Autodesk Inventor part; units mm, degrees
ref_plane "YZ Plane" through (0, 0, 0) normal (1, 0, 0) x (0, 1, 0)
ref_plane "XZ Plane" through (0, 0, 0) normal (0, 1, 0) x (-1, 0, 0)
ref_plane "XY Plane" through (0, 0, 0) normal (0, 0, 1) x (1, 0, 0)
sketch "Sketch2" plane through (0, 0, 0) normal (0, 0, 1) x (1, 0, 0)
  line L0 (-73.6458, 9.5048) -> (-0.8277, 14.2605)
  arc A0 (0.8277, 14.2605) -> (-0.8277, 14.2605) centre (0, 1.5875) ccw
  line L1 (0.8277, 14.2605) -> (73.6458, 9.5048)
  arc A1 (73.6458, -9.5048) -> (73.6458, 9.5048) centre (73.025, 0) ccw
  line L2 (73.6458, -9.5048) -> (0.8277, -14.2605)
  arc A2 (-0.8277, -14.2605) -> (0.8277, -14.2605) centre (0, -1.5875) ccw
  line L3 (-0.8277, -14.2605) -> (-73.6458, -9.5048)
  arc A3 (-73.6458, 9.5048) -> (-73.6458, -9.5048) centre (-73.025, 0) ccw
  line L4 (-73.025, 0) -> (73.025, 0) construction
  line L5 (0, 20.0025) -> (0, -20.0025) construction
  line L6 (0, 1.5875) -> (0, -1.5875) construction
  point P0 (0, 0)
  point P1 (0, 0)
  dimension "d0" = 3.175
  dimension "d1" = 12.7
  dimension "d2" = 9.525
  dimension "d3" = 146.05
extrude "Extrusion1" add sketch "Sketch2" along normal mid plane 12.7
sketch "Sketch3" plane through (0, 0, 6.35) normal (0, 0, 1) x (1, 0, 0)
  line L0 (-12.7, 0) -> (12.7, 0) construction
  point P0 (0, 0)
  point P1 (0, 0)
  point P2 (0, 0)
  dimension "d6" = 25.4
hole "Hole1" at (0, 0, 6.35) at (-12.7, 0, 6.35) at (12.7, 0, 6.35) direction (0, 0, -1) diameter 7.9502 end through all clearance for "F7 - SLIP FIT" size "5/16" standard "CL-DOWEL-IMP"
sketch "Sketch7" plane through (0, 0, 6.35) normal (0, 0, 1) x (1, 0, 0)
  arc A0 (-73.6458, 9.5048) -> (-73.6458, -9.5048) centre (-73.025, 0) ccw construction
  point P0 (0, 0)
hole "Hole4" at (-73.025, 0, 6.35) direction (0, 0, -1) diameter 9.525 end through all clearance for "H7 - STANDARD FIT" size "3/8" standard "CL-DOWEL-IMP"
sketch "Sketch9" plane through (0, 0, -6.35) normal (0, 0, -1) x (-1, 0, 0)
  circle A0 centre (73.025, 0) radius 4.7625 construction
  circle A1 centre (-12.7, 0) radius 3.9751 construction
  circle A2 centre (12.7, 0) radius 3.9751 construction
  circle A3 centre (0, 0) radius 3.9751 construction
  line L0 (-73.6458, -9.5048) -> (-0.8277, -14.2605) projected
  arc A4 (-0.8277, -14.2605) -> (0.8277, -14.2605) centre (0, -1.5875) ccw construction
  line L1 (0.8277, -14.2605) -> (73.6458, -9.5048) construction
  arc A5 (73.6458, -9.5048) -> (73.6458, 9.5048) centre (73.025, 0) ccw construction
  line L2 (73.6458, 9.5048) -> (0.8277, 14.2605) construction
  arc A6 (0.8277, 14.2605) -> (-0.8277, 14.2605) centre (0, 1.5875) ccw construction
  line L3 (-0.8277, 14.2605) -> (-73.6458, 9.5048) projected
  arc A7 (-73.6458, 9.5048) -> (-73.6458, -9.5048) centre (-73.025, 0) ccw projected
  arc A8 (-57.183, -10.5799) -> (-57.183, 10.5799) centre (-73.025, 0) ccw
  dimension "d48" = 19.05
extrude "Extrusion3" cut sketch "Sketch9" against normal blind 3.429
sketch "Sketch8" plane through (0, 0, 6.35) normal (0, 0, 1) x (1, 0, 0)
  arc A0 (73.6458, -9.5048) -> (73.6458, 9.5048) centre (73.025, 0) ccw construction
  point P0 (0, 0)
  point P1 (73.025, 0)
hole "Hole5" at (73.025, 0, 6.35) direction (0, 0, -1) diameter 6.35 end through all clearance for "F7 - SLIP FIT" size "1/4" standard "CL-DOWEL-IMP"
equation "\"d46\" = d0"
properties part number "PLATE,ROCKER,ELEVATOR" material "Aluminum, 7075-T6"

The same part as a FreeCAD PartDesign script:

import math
import FreeCAD as App
import Part
import Sketcher
from FreeCAD import Vector
Q = App.Units.Quantity

doc = App.newDocument("Part")
body = doc.addObject("PartDesign::Body", "Body")

# Sketch on XY plane
sketch1 = body.newObject("Sketcher::SketchObject", "Sketch")
sketch1.AttachmentSupport = (doc.getObject("XY_Plane"), [""])
sketch1.MapMode = "FlatFace"
sketch1.addGeometry(Part.LineSegment(Vector(-0.8, 14.3, 0), Vector(-73.6, 9.5, 0)), False)
sketch1.addGeometry(Part.ArcOfCircle(Part.Circle(Vector(-73, 0, 0), Vector(0, 0, 1), 9.5), math.radians(94), math.radians(266)), False)
sketch1.addGeometry(Part.LineSegment(Vector(-73.6, -9.5, 0), Vector(-0.8, -14.3, 0)), False)
sketch1.addGeometry(Part.ArcOfCircle(Part.Circle(Vector(0, -1.6, 0), Vector(0, 0, 1), 12.7), math.radians(-93.74), math.radians(-86.26)), False)
sketch1.addGeometry(Part.LineSegment(Vector(0.8, -14.3, 0), Vector(73.6, -9.5, 0)), False)
sketch1.addGeometry(Part.ArcOfCircle(Part.Circle(Vector(73, 0, 0), Vector(0, 0, 1), 9.5), math.radians(-86), math.radians(86)), False)
sketch1.addGeometry(Part.LineSegment(Vector(73.6, 9.5, 0), Vector(0.8, 14.3, 0)), False)
sketch1.addGeometry(Part.ArcOfCircle(Part.Circle(Vector(0, 1.6, 0), Vector(0, 0, 1), 12.7), math.radians(86.26), math.radians(93.74)), False)
sketch1.addConstraint(Sketcher.Constraint("Tangent", 0, 2, 1, 1))
sketch1.addConstraint(Sketcher.Constraint("Tangent", 1, 2, 2, 1))
sketch1.addConstraint(Sketcher.Constraint("Tangent", 2, 2, 3, 1))
sketch1.addConstraint(Sketcher.Constraint("Tangent", 3, 2, 4, 1))
sketch1.addConstraint(Sketcher.Constraint("Tangent", 4, 2, 5, 1))
sketch1.addConstraint(Sketcher.Constraint("Tangent", 5, 2, 6, 1))
sketch1.addConstraint(Sketcher.Constraint("Tangent", 6, 2, 7, 1))
sketch1.addConstraint(Sketcher.Constraint("Tangent", 7, 2, 0, 1))
sketch1.addConstraint(Sketcher.Constraint("Equal", 1, 5))
sketch1.addConstraint(Sketcher.Constraint("Equal", 3, 7))
sketch1.addConstraint(Sketcher.Constraint("Symmetric", 1, 3, 5, 3, -1, 1))
sketch1.addConstraint(Sketcher.Constraint("Symmetric", 3, 3, 7, 3, -1, 1))
sketch1.addConstraint(Sketcher.Constraint("Symmetric", 2, 2, 3, 2, -2))
sketch1.addConstraint(Sketcher.Constraint("Radius", 3, Q("0.5 in")))
sketch1.addConstraint(Sketcher.Constraint("Radius", 1, Q("0.375 in")))
sketch1.addConstraint(Sketcher.Constraint("DistanceX", 1, 3, 5, 3, Q("5.75 in")))
sketch1.addConstraint(Sketcher.Constraint("DistanceY", 3, 3, 7, 3, Q("0.125 in")))
pad1 = body.newObject("PartDesign::Pad", "Pad")
pad1.Profile = sketch1
pad1.Length = Q("0.5 in")
pad1.Midplane = True

# Sketch on XY plane
sketch2 = body.newObject("Sketcher::SketchObject", "Sketch001")
sketch2.AttachmentSupport = (doc.getObject("XY_Plane"), [""])
sketch2.MapMode = "FlatFace"
sketch2.AttachmentOffset = App.Placement(Vector(0, 0, 0.25 * 25.4), App.Rotation())
sketch2.addGeometry(Part.Circle(Vector(0, 0, 0), Vector(0, 0, 1), 4), False)
sketch2.addGeometry(Part.Circle(Vector(-12.7, 0, 0), Vector(0, 0, 1), 4), False)
sketch2.addGeometry(Part.Circle(Vector(12.7, 0, 0), Vector(0, 0, 1), 4), False)
sketch2.addConstraint(Sketcher.Constraint("Coincident", 0, 3, -1, 1))
sketch2.addConstraint(Sketcher.Constraint("Equal", 0, 1))
sketch2.addConstraint(Sketcher.Constraint("Equal", 1, 2))
sketch2.addConstraint(Sketcher.Constraint("Symmetric", 1, 3, 2, 3, -1, 1))
sketch2.addConstraint(Sketcher.Constraint("PointOnObject", 1, 3, -1))
sketch2.addConstraint(Sketcher.Constraint("Diameter", 0, Q("0.313 in")))
sketch2.addConstraint(Sketcher.Constraint("DistanceX", 1, 3, 2, 3, Q("1 in")))
doc.recompute()
hole = body.newObject("PartDesign::Hole", "Hole")
hole.Profile = sketch2
hole.ThreadType = "None"
hole.Diameter = Q("0.313 in")
hole.DepthType = "ThroughAll"

# Sketch on XY plane
sketch3 = body.newObject("Sketcher::SketchObject", "Sketch002")
sketch3.AttachmentSupport = (doc.getObject("XY_Plane"), [""])
sketch3.MapMode = "FlatFace"
sketch3.AttachmentOffset = App.Placement(Vector(0, 0, 0.25 * 25.4), App.Rotation())
sketch3.addGeometry(Part.Circle(Vector(-73, 0, 0), Vector(0, 0, 1), 4.8), False)
sketch3.addConstraint(Sketcher.Constraint("PointOnObject", 0, 3, -1))
sketch3.addConstraint(Sketcher.Constraint("Diameter", 0, Q("0.375 in")))
sketch3.addConstraint(Sketcher.Constraint("DistanceX", 0, 3, -1, 1, Q("2.875 in")))
doc.recompute()
hole2 = body.newObject("PartDesign::Hole", "Hole001")
hole2.Profile = sketch3
hole2.ThreadType = "None"
hole2.Diameter = Q("0.375 in")
hole2.DepthType = "ThroughAll"

# Sketch on XY plane
sketch4 = body.newObject("Sketcher::SketchObject", "Sketch003")
sketch4.AttachmentSupport = (doc.getObject("XY_Plane"), [""])
sketch4.MapMode = "FlatFace"
sketch4.AttachmentOffset = App.Placement(Vector(0, 0, -0.25 * 25.4), App.Rotation())
sketch4.addGeometry(Part.ArcOfCircle(Part.Circle(Vector(73.025, 0, 0), Vector(0, 0, 1), 9.525052), math.radians(-86.26307), math.radians(86.26307)), False)
sketch4.addGeometry(Part.LineSegment(Vector(73.6458, -9.5048, 0), Vector(57.183005, -10.579974, 0)), False)
sketch4.addGeometry(Part.ArcOfCircle(Part.Circle(Vector(73.025, 0, 0), Vector(0, 0, 1), 19.05002), math.radians(146.263469), math.radians(213.736531)), False)
sketch4.addGeometry(Part.LineSegment(Vector(57.183005, 10.579974, 0), Vector(73.6458, 9.5048, 0)), False)
sketch4.addConstraint(Sketcher.Constraint("Coincident", 0, 1, 1, 1))
sketch4.addConstraint(Sketcher.Constraint("Coincident", 1, 2, 2, 2))
sketch4.addConstraint(Sketcher.Constraint("Coincident", 2, 1, 3, 1))
sketch4.addConstraint(Sketcher.Constraint("Coincident", 3, 2, 0, 2))
sketch4.addConstraint(Sketcher.Constraint("Coincident", 2, 3, 0, 3))
sketch4.addConstraint(Sketcher.Constraint("PointOnObject", 0, 3, -1))
sketch4.addConstraint(Sketcher.Constraint("Radius", 2, Q("0.75 in")))
sketch4.addConstraint(Sketcher.Constraint("Radius", 0, Q("0.375 in")))
sketch4.addConstraint(Sketcher.Constraint("DistanceX", -1, 1, 0, 3, Q("2.875 in")))
sketch4.addConstraint(Sketcher.Constraint("DistanceY", 0, 1, -1, 1, Q("0.3742 in")))
sketch4.addConstraint(Sketcher.Constraint("DistanceX", -1, 1, 1, 2, Q("2.2513 in")))
sketch4.addConstraint(Sketcher.Constraint("DistanceX", -1, 1, 2, 1, Q("2.2513 in")))
sketch4.addConstraint(Sketcher.Constraint("DistanceY", -1, 1, 3, 2, Q("0.3742 in")))
pocket1 = body.newObject("PartDesign::Pocket", "Pocket")
pocket1.Profile = sketch4
pocket1.Length = Q("0.135 in")
pocket1.Reversed = True

# Sketch on XY plane
sketch5 = body.newObject("Sketcher::SketchObject", "Sketch004")
sketch5.AttachmentSupport = (doc.getObject("XY_Plane"), [""])
sketch5.MapMode = "FlatFace"
sketch5.AttachmentOffset = App.Placement(Vector(0, 0, 0.25 * 25.4), App.Rotation())
sketch5.addGeometry(Part.Circle(Vector(73, 0, 0), Vector(0, 0, 1), 3.2), False)
sketch5.addConstraint(Sketcher.Constraint("PointOnObject", 0, 3, -1))
sketch5.addConstraint(Sketcher.Constraint("Diameter", 0, Q("0.25 in")))
sketch5.addConstraint(Sketcher.Constraint("DistanceX", -1, 1, 0, 3, Q("2.875 in")))
doc.recompute()
hole3 = body.newObject("PartDesign::Hole", "Hole002")
hole3.Profile = sketch5
hole3.ThreadType = "None"
hole3.Diameter = Q("0.25 in")
hole3.DepthType = "ThroughAll"

doc.recompute()
